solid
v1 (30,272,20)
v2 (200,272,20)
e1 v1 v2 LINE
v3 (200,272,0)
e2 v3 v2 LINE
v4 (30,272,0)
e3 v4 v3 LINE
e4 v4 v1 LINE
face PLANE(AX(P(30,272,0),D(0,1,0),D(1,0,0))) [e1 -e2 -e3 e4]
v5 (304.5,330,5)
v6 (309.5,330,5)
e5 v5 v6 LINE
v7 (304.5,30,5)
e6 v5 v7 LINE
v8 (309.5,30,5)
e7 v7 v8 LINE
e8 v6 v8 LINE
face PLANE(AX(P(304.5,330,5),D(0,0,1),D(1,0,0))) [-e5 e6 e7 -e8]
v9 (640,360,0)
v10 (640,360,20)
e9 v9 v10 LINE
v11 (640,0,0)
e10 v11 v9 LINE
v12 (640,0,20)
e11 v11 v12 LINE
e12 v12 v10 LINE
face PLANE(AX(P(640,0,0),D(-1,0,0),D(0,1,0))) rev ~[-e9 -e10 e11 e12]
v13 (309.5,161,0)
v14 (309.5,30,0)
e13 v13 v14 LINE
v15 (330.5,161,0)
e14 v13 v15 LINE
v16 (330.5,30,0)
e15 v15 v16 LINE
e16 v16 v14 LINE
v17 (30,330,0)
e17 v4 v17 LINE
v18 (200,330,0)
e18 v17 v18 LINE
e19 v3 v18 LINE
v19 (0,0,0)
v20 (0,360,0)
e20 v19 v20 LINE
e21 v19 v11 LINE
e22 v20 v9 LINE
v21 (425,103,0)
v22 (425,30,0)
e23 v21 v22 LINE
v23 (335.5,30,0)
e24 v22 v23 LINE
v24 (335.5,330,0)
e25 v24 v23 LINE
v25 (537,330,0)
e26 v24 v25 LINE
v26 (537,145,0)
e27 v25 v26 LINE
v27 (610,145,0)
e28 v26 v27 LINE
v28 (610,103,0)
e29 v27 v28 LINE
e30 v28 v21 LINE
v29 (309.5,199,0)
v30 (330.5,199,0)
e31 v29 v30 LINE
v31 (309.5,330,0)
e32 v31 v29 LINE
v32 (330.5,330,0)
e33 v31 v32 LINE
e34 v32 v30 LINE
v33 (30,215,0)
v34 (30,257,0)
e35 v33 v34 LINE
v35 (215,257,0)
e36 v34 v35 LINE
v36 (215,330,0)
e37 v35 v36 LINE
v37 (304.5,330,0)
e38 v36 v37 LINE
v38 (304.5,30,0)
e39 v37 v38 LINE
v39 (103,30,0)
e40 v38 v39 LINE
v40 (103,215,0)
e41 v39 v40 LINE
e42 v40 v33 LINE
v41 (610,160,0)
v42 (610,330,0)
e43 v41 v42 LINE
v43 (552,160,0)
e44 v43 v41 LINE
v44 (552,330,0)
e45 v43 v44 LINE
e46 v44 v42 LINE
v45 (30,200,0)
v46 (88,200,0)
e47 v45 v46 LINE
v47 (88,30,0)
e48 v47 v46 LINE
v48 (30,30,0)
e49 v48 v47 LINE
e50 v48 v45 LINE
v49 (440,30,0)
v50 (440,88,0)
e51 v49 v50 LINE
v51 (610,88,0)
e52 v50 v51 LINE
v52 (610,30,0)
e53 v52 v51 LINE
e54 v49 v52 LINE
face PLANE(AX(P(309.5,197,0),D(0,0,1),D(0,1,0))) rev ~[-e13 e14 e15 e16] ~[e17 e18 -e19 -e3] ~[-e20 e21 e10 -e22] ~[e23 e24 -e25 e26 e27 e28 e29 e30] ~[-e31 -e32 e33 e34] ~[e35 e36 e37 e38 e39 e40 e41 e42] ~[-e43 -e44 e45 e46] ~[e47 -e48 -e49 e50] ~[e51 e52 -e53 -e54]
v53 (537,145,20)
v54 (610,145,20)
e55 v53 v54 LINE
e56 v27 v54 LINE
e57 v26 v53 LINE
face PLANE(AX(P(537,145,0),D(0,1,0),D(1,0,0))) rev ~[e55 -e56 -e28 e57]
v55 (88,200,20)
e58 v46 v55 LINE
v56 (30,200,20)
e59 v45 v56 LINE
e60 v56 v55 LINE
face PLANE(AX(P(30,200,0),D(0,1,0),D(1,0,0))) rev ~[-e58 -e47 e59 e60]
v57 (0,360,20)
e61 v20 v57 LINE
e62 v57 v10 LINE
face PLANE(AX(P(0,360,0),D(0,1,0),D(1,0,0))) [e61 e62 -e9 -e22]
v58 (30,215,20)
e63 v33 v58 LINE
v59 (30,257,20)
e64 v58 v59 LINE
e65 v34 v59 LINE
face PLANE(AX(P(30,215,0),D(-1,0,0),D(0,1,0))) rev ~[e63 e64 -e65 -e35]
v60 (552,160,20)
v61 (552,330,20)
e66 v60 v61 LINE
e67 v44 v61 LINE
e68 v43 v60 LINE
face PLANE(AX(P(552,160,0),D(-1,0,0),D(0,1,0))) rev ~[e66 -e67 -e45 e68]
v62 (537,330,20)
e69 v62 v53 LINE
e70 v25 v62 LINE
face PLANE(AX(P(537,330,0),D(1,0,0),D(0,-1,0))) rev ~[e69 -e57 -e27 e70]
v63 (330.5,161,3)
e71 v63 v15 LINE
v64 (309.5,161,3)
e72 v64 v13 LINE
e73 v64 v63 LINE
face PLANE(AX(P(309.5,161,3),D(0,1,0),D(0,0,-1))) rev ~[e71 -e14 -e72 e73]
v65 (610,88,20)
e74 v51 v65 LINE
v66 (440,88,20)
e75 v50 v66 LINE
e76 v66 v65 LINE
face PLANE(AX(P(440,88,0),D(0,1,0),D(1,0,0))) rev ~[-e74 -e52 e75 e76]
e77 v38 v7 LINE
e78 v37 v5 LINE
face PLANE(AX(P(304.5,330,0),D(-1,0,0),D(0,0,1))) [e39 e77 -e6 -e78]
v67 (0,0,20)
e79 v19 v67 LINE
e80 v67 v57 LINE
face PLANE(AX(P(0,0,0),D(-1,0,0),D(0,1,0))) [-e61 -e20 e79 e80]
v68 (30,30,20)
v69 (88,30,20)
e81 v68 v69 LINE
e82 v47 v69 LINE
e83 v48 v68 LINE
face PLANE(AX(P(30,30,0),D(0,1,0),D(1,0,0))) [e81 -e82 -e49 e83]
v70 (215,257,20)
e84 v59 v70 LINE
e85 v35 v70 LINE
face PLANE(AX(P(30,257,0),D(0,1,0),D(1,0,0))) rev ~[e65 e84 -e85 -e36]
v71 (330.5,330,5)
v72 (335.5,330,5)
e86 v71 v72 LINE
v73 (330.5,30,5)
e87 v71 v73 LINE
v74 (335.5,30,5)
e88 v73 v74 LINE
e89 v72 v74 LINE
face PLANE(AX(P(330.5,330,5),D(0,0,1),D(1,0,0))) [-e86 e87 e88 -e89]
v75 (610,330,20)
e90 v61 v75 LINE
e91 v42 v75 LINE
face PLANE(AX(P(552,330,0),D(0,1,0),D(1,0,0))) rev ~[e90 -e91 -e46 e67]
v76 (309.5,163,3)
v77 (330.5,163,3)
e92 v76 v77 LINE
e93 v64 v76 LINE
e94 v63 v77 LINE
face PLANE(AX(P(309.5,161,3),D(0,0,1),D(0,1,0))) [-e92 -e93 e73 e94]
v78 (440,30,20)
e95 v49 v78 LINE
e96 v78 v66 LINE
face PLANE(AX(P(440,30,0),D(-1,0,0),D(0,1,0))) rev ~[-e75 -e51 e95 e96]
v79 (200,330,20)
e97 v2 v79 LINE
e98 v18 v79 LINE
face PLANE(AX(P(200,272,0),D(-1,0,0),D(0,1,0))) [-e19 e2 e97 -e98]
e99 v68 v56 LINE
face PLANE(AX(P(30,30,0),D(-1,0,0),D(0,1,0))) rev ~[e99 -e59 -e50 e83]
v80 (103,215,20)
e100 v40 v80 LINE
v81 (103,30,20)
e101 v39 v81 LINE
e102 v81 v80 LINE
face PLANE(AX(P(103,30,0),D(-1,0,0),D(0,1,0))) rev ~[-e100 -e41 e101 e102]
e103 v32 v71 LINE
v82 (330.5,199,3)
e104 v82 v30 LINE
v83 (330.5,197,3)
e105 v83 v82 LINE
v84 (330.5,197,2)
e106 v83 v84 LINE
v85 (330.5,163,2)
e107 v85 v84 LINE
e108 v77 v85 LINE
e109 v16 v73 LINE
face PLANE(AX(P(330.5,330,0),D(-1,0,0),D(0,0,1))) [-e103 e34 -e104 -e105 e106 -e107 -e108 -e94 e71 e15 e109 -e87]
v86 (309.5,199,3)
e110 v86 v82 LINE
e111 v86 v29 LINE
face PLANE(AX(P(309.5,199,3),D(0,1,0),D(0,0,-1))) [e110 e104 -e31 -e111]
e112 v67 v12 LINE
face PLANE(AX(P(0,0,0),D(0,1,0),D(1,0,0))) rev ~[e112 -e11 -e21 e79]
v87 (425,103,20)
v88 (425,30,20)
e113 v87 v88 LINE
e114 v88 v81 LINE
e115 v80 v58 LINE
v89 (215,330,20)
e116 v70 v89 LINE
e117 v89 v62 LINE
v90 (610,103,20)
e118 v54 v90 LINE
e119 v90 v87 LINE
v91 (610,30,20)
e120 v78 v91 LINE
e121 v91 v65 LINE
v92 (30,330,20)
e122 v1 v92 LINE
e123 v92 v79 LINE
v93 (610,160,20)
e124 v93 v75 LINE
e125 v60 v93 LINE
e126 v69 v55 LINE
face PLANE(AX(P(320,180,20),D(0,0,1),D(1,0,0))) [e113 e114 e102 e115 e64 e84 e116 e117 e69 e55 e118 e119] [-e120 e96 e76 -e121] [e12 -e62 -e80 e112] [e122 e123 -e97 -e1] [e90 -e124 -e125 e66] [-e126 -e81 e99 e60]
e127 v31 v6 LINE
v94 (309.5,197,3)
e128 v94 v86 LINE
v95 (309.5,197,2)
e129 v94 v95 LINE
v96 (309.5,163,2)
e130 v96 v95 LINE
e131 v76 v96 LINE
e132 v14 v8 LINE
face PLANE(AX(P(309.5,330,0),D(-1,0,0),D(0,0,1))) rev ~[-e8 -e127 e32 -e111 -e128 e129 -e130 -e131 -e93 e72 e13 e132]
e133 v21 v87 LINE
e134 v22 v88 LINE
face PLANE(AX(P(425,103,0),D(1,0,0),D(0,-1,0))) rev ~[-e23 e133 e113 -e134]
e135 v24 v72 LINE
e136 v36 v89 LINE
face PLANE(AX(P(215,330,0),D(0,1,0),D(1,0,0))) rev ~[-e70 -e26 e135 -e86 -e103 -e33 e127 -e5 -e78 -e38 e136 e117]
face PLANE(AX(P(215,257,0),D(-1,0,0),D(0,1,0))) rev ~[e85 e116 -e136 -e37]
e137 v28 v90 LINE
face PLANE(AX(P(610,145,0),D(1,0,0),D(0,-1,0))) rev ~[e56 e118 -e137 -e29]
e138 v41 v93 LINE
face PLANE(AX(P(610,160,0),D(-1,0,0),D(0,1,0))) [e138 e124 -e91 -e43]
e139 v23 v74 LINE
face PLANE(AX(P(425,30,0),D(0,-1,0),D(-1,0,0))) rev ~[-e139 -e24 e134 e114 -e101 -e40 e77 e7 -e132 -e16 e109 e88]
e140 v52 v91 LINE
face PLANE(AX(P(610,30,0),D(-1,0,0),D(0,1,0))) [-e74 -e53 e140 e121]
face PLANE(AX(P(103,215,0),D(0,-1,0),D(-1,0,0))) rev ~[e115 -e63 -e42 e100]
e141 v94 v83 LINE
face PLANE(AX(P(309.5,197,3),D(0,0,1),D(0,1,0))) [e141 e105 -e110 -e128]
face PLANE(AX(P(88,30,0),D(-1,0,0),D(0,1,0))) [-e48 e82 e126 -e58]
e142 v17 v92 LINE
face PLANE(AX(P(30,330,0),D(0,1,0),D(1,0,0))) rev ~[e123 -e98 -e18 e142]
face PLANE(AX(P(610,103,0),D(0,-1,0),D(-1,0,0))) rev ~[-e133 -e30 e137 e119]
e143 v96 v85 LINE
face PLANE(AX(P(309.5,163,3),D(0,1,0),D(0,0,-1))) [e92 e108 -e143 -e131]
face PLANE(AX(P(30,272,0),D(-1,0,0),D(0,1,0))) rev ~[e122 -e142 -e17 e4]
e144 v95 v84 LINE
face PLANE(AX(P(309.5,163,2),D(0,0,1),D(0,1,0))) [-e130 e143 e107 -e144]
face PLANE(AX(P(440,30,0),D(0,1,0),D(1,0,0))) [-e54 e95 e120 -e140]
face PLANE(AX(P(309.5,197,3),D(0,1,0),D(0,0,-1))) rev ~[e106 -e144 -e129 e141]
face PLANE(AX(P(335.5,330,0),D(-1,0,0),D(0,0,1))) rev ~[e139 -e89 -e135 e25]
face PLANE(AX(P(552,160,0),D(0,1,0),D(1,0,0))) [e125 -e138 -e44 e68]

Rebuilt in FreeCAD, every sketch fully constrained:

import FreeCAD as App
import Part
import Sketcher

V = App.Vector

doc = App.newDocument("Part")
body = doc.addObject("PartDesign::Body", "Body")

sketch1 = doc.addObject("Sketcher::SketchObject", "Sketch")
body.addObject(sketch1)
sketch1.AttachmentSupport = (doc.XY_Plane, [""])
sketch1.MapMode = "FlatFace"
sketch1.addGeometry(Part.LineSegment(V(0, 360, 0), V(0, 0, 0)), False)
sketch1.addGeometry(Part.LineSegment(V(0, 0, 0), V(640, 0, 0)), False)
sketch1.addGeometry(Part.LineSegment(V(640, 0, 0), V(640, 360, 0)), False)
sketch1.addGeometry(Part.LineSegment(V(640, 360, 0), V(0, 360, 0)), False)
sketch1.addGeometry(Part.LineSegment(V(88, 30, 0), V(30, 30, 0)), False)
sketch1.addGeometry(Part.LineSegment(V(30, 30, 0), V(30, 200, 0)), False)
sketch1.addGeometry(Part.LineSegment(V(30, 200, 0), V(88, 200, 0)), False)
sketch1.addGeometry(Part.LineSegment(V(88, 200, 0), V(88, 30, 0)), False)
sketch1.addGeometry(Part.LineSegment(V(610, 30, 0), V(440, 30, 0)), False)
sketch1.addGeometry(Part.LineSegment(V(440, 30, 0), V(440, 88, 0)), False)
sketch1.addGeometry(Part.LineSegment(V(440, 88, 0), V(610, 88, 0)), False)
sketch1.addGeometry(Part.LineSegment(V(610, 88, 0), V(610, 30, 0)), False)
sketch1.addGeometry(Part.LineSegment(V(200, 272, 0), V(30, 272, 0)), False)
sketch1.addGeometry(Part.LineSegment(V(30, 272, 0), V(30, 330, 0)), False)
sketch1.addGeometry(Part.LineSegment(V(30, 330, 0), V(200, 330, 0)), False)
sketch1.addGeometry(Part.LineSegment(V(200, 330, 0), V(200, 272, 0)), False)
sketch1.addGeometry(Part.LineSegment(V(215, 257, 0), V(215, 330, 0)), False)
sketch1.addGeometry(Part.LineSegment(V(215, 330, 0), V(537, 330, 0)), False)
sketch1.addGeometry(Part.LineSegment(V(537, 330, 0), V(537, 145, 0)), False)
sketch1.addGeometry(Part.LineSegment(V(537, 145, 0), V(610, 145, 0)), False)
sketch1.addGeometry(Part.LineSegment(V(610, 145, 0), V(610, 103, 0)), False)
sketch1.addGeometry(Part.LineSegment(V(610, 103, 0), V(425, 103, 0)), False)
sketch1.addGeometry(Part.LineSegment(V(425, 103, 0), V(425, 30, 0)), False)
sketch1.addGeometry(Part.LineSegment(V(425, 30, 0), V(103, 30, 0)), False)
sketch1.addGeometry(Part.LineSegment(V(103, 30, 0), V(103, 215, 0)), False)
sketch1.addGeometry(Part.LineSegment(V(103, 215, 0), V(30, 215, 0)), False)
sketch1.addGeometry(Part.LineSegment(V(30, 215, 0), V(30, 257, 0)), False)
sketch1.addGeometry(Part.LineSegment(V(30, 257, 0), V(215, 257, 0)), False)
sketch1.addGeometry(Part.LineSegment(V(610, 160, 0), V(552, 160, 0)), False)
sketch1.addGeometry(Part.LineSegment(V(552, 160, 0), V(552, 330, 0)), False)
sketch1.addGeometry(Part.LineSegment(V(552, 330, 0), V(610, 330, 0)), False)
sketch1.addGeometry(Part.LineSegment(V(610, 330, 0), V(610, 160, 0)), False)
sketch1.addConstraint(Sketcher.Constraint("Coincident", 0, 2, 1, 1))
sketch1.addConstraint(Sketcher.Constraint("Coincident", 1, 2, 2, 1))
sketch1.addConstraint(Sketcher.Constraint("Coincident", 2, 2, 3, 1))
sketch1.addConstraint(Sketcher.Constraint("Coincident", 3, 2, 0, 1))
sketch1.addConstraint(Sketcher.Constraint("Coincident", 4, 2, 5, 1))
sketch1.addConstraint(Sketcher.Constraint("Coincident", 5, 2, 6, 1))
sketch1.addConstraint(Sketcher.Constraint("Coincident", 6, 2, 7, 1))
sketch1.addConstraint(Sketcher.Constraint("Coincident", 7, 2, 4, 1))
sketch1.addConstraint(Sketcher.Constraint("Coincident", 8, 2, 9, 1))
sketch1.addConstraint(Sketcher.Constraint("Coincident", 9, 2, 10, 1))
sketch1.addConstraint(Sketcher.Constraint("Coincident", 10, 2, 11, 1))
sketch1.addConstraint(Sketcher.Constraint("Coincident", 11, 2, 8, 1))
sketch1.addConstraint(Sketcher.Constraint("Coincident", 12, 2, 13, 1))
sketch1.addConstraint(Sketcher.Constraint("Coincident", 13, 2, 14, 1))
sketch1.addConstraint(Sketcher.Constraint("Coincident", 14, 2, 15, 1))
sketch1.addConstraint(Sketcher.Constraint("Coincident", 15, 2, 12, 1))
sketch1.addConstraint(Sketcher.Constraint("Coincident", 16, 2, 17, 1))
sketch1.addConstraint(Sketcher.Constraint("Coincident", 17, 2, 18, 1))
sketch1.addConstraint(Sketcher.Constraint("Coincident", 18, 2, 19, 1))
sketch1.addConstraint(Sketcher.Constraint("Coincident", 19, 2, 20, 1))
sketch1.addConstraint(Sketcher.Constraint("Coincident", 20, 2, 21, 1))
sketch1.addConstraint(Sketcher.Constraint("Coincident", 21, 2, 22, 1))
sketch1.addConstraint(Sketcher.Constraint("Coincident", 22, 2, 23, 1))
sketch1.addConstraint(Sketcher.Constraint("Coincident", 23, 2, 24, 1))
sketch1.addConstraint(Sketcher.Constraint("Coincident", 24, 2, 25, 1))
sketch1.addConstraint(Sketcher.Constraint("Coincident", 25, 2, 26, 1))
sketch1.addConstraint(Sketcher.Constraint("Coincident", 26, 2, 27, 1))
sketch1.addConstraint(Sketcher.Constraint("Coincident", 27, 2, 16, 1))
sketch1.addConstraint(Sketcher.Constraint("Coincident", 28, 2, 29, 1))
sketch1.addConstraint(Sketcher.Constraint("Coincident", 29, 2, 30, 1))
sketch1.addConstraint(Sketcher.Constraint("Coincident", 30, 2, 31, 1))
sketch1.addConstraint(Sketcher.Constraint("Coincident", 31, 2, 28, 1))
sketch1.addConstraint(Sketcher.Constraint("Vertical", 0))
sketch1.addConstraint(Sketcher.Constraint("Horizontal", 1))
sketch1.addConstraint(Sketcher.Constraint("Vertical", 2))
sketch1.addConstraint(Sketcher.Constraint("Horizontal", 3))
sketch1.addConstraint(Sketcher.Constraint("Horizontal", 4))
sketch1.addConstraint(Sketcher.Constraint("Vertical", 5))
sketch1.addConstraint(Sketcher.Constraint("Horizontal", 6))
sketch1.addConstraint(Sketcher.Constraint("Vertical", 7))
sketch1.addConstraint(Sketcher.Constraint("Horizontal", 8))
sketch1.addConstraint(Sketcher.Constraint("Vertical", 9))
sketch1.addConstraint(Sketcher.Constraint("Horizontal", 10))
sketch1.addConstraint(Sketcher.Constraint("Vertical", 11))
sketch1.addConstraint(Sketcher.Constraint("Horizontal", 12))
sketch1.addConstraint(Sketcher.Constraint("Vertical", 13))
sketch1.addConstraint(Sketcher.Constraint("Horizontal", 14))
sketch1.addConstraint(Sketcher.Constraint("Vertical", 15))
sketch1.addConstraint(Sketcher.Constraint("Vertical", 16))
sketch1.addConstraint(Sketcher.Constraint("Horizontal", 17))
sketch1.addConstraint(Sketcher.Constraint("Vertical", 18))
sketch1.addConstraint(Sketcher.Constraint("Horizontal", 19))
sketch1.addConstraint(Sketcher.Constraint("Vertical", 20))
sketch1.addConstraint(Sketcher.Constraint("Horizontal", 21))
sketch1.addConstraint(Sketcher.Constraint("Vertical", 22))
sketch1.addConstraint(Sketcher.Constraint("Horizontal", 23))
sketch1.addConstraint(Sketcher.Constraint("Vertical", 24))
sketch1.addConstraint(Sketcher.Constraint("Horizontal", 25))
sketch1.addConstraint(Sketcher.Constraint("Vertical", 26))
sketch1.addConstraint(Sketcher.Constraint("Horizontal", 27))
sketch1.addConstraint(Sketcher.Constraint("Horizontal", 28))
sketch1.addConstraint(Sketcher.Constraint("Vertical", 29))
sketch1.addConstraint(Sketcher.Constraint("Horizontal", 30))
sketch1.addConstraint(Sketcher.Constraint("Vertical", 31))
sketch1.addConstraint(Sketcher.Constraint("Coincident", 0, 2, -1, 1))
sketch1.addConstraint(Sketcher.Constraint("Horizontal", 7, 2, 8, 2))
sketch1.addConstraint(Sketcher.Constraint("Horizontal", 14, 2, 16, 2))
sketch1.addConstraint(Sketcher.Constraint("Horizontal", 11, 2, 22, 2))
sketch1.addConstraint(Sketcher.Constraint("Horizontal", 17, 2, 29, 2))
sketch1.addConstraint(Sketcher.Constraint("Vertical", 5, 2, 12, 2))
sketch1.addConstraint(Sketcher.Constraint("Vertical", 11, 2, 19, 2))
sketch1.addConstraint(Sketcher.Constraint("Vertical", 13, 2, 25, 2))
sketch1.addConstraint(Sketcher.Constraint("Vertical", 20, 2, 30, 2))
sketch1.addConstraint(Sketcher.Constraint("Equal", 10, 12))
sketch1.addConstraint(Sketcher.Constraint("Equal", 17, 23))
sketch1.addConstraint(Sketcher.Constraint("Equal", 19, 25))
sketch1.addConstraint(Sketcher.Constraint("Equal", 6, 28))
sketch1.addConstraint(Sketcher.Constraint("Equal", 14, 5))
sketch1.addConstraint(Sketcher.Constraint("Equal", 30, 9))
sketch1.addConstraint(Sketcher.Constraint("Equal", 11, 13))
sketch1.addConstraint(Sketcher.Constraint("Equal", 25, 16))
sketch1.addConstraint(Sketcher.Constraint("Equal", 27, 18))
sketch1.addConstraint(Sketcher.Constraint("Equal", 16, 22))
sketch1.addConstraint(Sketcher.Constraint("Equal", 18, 24))
sketch1.addConstraint(Sketcher.Constraint("Equal", 7, 29))
sketch1.addConstraint(Sketcher.Constraint("DistanceX", 1, 1, 1, 2, 640.0))
sketch1.addConstraint(Sketcher.Constraint("DistanceX", 4, 2, 4, 1, 58.0))
sketch1.addConstraint(Sketcher.Constraint("DistanceX", 8, 2, 8, 1, 170.0))
sketch1.addConstraint(Sketcher.Constraint("DistanceX", 17, 1, 17, 2, 322.0))
sketch1.addConstraint(Sketcher.Constraint("DistanceX", 19, 1, 19, 2, 73.0))
sketch1.addConstraint(Sketcher.Constraint("DistanceX", 21, 2, 21, 1, 185.0))
sketch1.addConstraint(Sketcher.Constraint("DistanceY", 0, 2, 0, 1, 360.0))
sketch1.addConstraint(Sketcher.Constraint("DistanceY", 20, 2, 20, 1, 42.0))
sketch1.addConstraint(Sketcher.Constraint("DistanceX", -1, 1, 4, 2, 30.0))
sketch1.addConstraint(Sketcher.Constraint("DistanceY", -1, 1, 4, 2, 30.0))
pad1 = doc.addObject("PartDesign::Pad", "Pad")
body.addObject(pad1)
pad1.Profile = sketch1
pad1.Length = 20

sketch2 = doc.addObject("Sketcher::SketchObject", "Sketch001")
body.addObject(sketch2)
sketch2.AttachmentSupport = (doc.XZ_Plane, [""])
sketch2.MapMode = "FlatFace"
sketch2.AttachmentOffset = App.Placement(V(0, 0, -330), App.Rotation())
sketch2.addGeometry(Part.LineSegment(V(304.5, 5, 0), V(304.5, 0, 0)), False)
sketch2.addGeometry(Part.LineSegment(V(304.5, 0, 0), V(309.5, 0, 0)), False)
sketch2.addGeometry(Part.LineSegment(V(309.5, 0, 0), V(309.5, 5, 0)), False)
sketch2.addGeometry(Part.LineSegment(V(309.5, 5, 0), V(304.5, 5, 0)), False)
sketch2.addGeometry(Part.LineSegment(V(330.5, 5, 0), V(330.5, 0, 0)), False)
sketch2.addGeometry(Part.LineSegment(V(330.5, 0, 0), V(335.5, 0, 0)), False)
sketch2.addGeometry(Part.LineSegment(V(335.5, 0, 0), V(335.5, 5, 0)), False)
sketch2.addGeometry(Part.LineSegment(V(335.5, 5, 0), V(330.5, 5, 0)), False)
sketch2.addConstraint(Sketcher.Constraint("Coincident", 0, 2, 1, 1))
sketch2.addConstraint(Sketcher.Constraint("Coincident", 1, 2, 2, 1))
sketch2.addConstraint(Sketcher.Constraint("Coincident", 2, 2, 3, 1))
sketch2.addConstraint(Sketcher.Constraint("Coincident", 3, 2, 0, 1))
sketch2.addConstraint(Sketcher.Constraint("Coincident", 4, 2, 5, 1))
sketch2.addConstraint(Sketcher.Constraint("Coincident", 5, 2, 6, 1))
sketch2.addConstraint(Sketcher.Constraint("Coincident", 6, 2, 7, 1))
sketch2.addConstraint(Sketcher.Constraint("Coincident", 7, 2, 4, 1))
sketch2.addConstraint(Sketcher.Constraint("Vertical", 0))
sketch2.addConstraint(Sketcher.Constraint("Horizontal", 1))
sketch2.addConstraint(Sketcher.Constraint("Vertical", 2))
sketch2.addConstraint(Sketcher.Constraint("Horizontal", 3))
sketch2.addConstraint(Sketcher.Constraint("Vertical", 4))
sketch2.addConstraint(Sketcher.Constraint("Horizontal", 5))
sketch2.addConstraint(Sketcher.Constraint("Vertical", 6))
sketch2.addConstraint(Sketcher.Constraint("Horizontal", 7))
sketch2.addConstraint(Sketcher.Constraint("PointOnObject", 0, 2, -1))
sketch2.addConstraint(Sketcher.Constraint("PointOnObject", 4, 2, -1))
sketch2.addConstraint(Sketcher.Constraint("Horizontal", 3, 2, 6, 2))
sketch2.addConstraint(Sketcher.Constraint("Equal", 3, 5))
sketch2.addConstraint(Sketcher.Constraint("Equal", 7, 0))
sketch2.addConstraint(Sketcher.Constraint("DistanceX", 1, 1, 1, 2, 5.0))
sketch2.addConstraint(Sketcher.Constraint("DistanceX", 1, 2, 4, 2, 21.0))
sketch2.addConstraint(Sketcher.Constraint("DistanceX", -1, 1, 0, 2, 304.5))
pad2 = doc.addObject("PartDesign::Pad", "Pad001")
body.addObject(pad2)
pad2.Profile = sketch2
pad2.Length = 300

sketch3 = doc.addObject("Sketcher::SketchObject", "Sketch002")
body.addObject(sketch3)
sketch3.AttachmentSupport = (doc.YZ_Plane, [""])
sketch3.MapMode = "FlatFace"
sketch3.AttachmentOffset = App.Placement(V(0, 0, 309.5), App.Rotation())
sketch3.addGeometry(Part.LineSegment(V(197, 2, 0), V(163, 2, 0)), False)
sketch3.addGeometry(Part.LineSegment(V(163, 2, 0), V(163, 0, 0)), False)
sketch3.addGeometry(Part.LineSegment(V(163, 0, 0), V(197, 0, 0)), False)
sketch3.addGeometry(Part.LineSegment(V(197, 0, 0), V(197, 2, 0)), False)
sketch3.addConstraint(Sketcher.Constraint("Coincident", 0, 2, 1, 1))
sketch3.addConstraint(Sketcher.Constraint("Coincident", 1, 2, 2, 1))
sketch3.addConstraint(Sketcher.Constraint("Coincident", 2, 2, 3, 1))
sketch3.addConstraint(Sketcher.Constraint("Coincident", 3, 2, 0, 1))
sketch3.addConstraint(Sketcher.Constraint("Horizontal", 0))
sketch3.addConstraint(Sketcher.Constraint("Vertical", 1))
sketch3.addConstraint(Sketcher.Constraint("Horizontal", 2))
sketch3.addConstraint(Sketcher.Constraint("Vertical", 3))
sketch3.addConstraint(Sketcher.Constraint("PointOnObject", 1, 2, -1))
sketch3.addConstraint(Sketcher.Constraint("DistanceX", 0, 2, 0, 1, 34.0))
sketch3.addConstraint(Sketcher.Constraint("DistanceY", 1, 2, 1, 1, 2.0))
sketch3.addConstraint(Sketcher.Constraint("DistanceX", -1, 1, 0, 2, 163.0))
pad3 = doc.addObject("PartDesign::Pad", "Pad002")
body.addObject(pad3)
pad3.Profile = sketch3
pad3.Length = 21

sketch4 = doc.addObject("Sketcher::SketchObject", "Sketch003")
body.addObject(sketch4)
sketch4.AttachmentSupport = (doc.YZ_Plane, [""])
sketch4.MapMode = "FlatFace"
sketch4.AttachmentOffset = App.Placement(V(0, 0, 309.5), App.Rotation())
sketch4.addGeometry(Part.LineSegment(V(199, 3, 0), V(197, 3, 0)), False)
sketch4.addGeometry(Part.LineSegment(V(197, 3, 0), V(197, 0, 0)), False)
sketch4.addGeometry(Part.LineSegment(V(197, 0, 0), V(199, 0, 0)), False)
sketch4.addGeometry(Part.LineSegment(V(199, 0, 0), V(199, 3, 0)), False)
sketch4.addGeometry(Part.LineSegment(V(163, 3, 0), V(161, 3, 0)), False)
sketch4.addGeometry(Part.LineSegment(V(161, 3, 0), V(161, 0, 0)), False)
sketch4.addGeometry(Part.LineSegment(V(161, 0, 0), V(163, 0, 0)), False)
sketch4.addGeometry(Part.LineSegment(V(163, 0, 0), V(163, 3, 0)), False)
sketch4.addConstraint(Sketcher.Constraint("Coincident", 0, 2, 1, 1))
sketch4.addConstraint(Sketcher.Constraint("Coincident", 1, 2, 2, 1))
sketch4.addConstraint(Sketcher.Constraint("Coincident", 2, 2, 3, 1))
sketch4.addConstraint(Sketcher.Constraint("Coincident", 3, 2, 0, 1))
sketch4.addConstraint(Sketcher.Constraint("Coincident", 4, 2, 5, 1))
sketch4.addConstraint(Sketcher.Constraint("Coincident", 5, 2, 6, 1))
sketch4.addConstraint(Sketcher.Constraint("Coincident", 6, 2, 7, 1))
sketch4.addConstraint(Sketcher.Constraint("Coincident", 7, 2, 4, 1))
sketch4.addConstraint(Sketcher.Constraint("Horizontal", 0))
sketch4.addConstraint(Sketcher.Constraint("Vertical", 1))
sketch4.addConstraint(Sketcher.Constraint("Horizontal", 2))
sketch4.addConstraint(Sketcher.Constraint("Vertical", 3))
sketch4.addConstraint(Sketcher.Constraint("Horizontal", 4))
sketch4.addConstraint(Sketcher.Constraint("Vertical", 5))
sketch4.addConstraint(Sketcher.Constraint("Horizontal", 6))
sketch4.addConstraint(Sketcher.Constraint("Vertical", 7))
sketch4.addConstraint(Sketcher.Constraint("PointOnObject", 1, 2, -1))
sketch4.addConstraint(Sketcher.Constraint("PointOnObject", 5, 2, -1))
sketch4.addConstraint(Sketcher.Constraint("Horizontal", 3, 2, 4, 2))
sketch4.addConstraint(Sketcher.Constraint("Equal", 2, 4))
sketch4.addConstraint(Sketcher.Constraint("DistanceX", 0, 2, 0, 1, 2.0))
sketch4.addConstraint(Sketcher.Constraint("DistanceY", 1, 2, 1, 1, 3.0))
sketch4.addConstraint(Sketcher.Constraint("DistanceX", -1, 1, 0, 2, 197.0))
sketch4.addConstraint(Sketcher.Constraint("DistanceX", -1, 1, 4, 2, 161.0))
pad4 = doc.addObject("PartDesign::Pad", "Pad003")
body.addObject(pad4)
pad4.Profile = sketch4
pad4.Length = 21

doc.recompute()
